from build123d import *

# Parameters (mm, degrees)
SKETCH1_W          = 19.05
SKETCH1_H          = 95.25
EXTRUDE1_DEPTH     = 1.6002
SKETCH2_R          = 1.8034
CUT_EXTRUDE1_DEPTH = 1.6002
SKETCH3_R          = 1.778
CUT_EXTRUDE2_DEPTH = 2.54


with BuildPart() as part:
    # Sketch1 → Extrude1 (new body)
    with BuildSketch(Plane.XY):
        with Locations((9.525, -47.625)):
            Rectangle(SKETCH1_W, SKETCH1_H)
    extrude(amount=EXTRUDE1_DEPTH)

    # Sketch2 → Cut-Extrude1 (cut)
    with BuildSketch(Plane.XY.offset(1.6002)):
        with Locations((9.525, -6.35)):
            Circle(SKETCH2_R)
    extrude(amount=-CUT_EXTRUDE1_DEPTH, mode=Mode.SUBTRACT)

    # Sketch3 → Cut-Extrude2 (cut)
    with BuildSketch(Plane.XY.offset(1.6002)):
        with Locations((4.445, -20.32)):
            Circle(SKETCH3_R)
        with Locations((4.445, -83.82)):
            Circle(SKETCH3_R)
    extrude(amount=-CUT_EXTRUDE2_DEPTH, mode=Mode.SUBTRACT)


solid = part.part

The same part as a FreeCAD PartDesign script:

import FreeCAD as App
import Part
import Sketcher
Q = App.Units.Quantity

doc = App.newDocument("Part")
params = doc.addObject("Spreadsheet::Sheet", "Params")
for row, (alias, value) in enumerate([
    ("sketch1_width", "0.75 in"),
    ("sketch1_height", "3.75 in"),
    ("pad1_length", "0.063 in"),
    ("sketch2_diameter", "0.142 in"),
    ("pocket1_length", "0.063 in"),
    ("sketch3_diameter", "0.14 in"),
    ("pocket2_length", "0.1 in"),
], start=1):
    params.set(f"A{row}", alias)
    params.set(f"B{row}", "=" + value)
    params.setAlias(f"B{row}", alias)

body = doc.addObject("PartDesign::Body", "Body")

sketch1 = body.newObject("Sketcher::SketchObject", "Sketch")
sketch1.AttachmentSupport = (doc.getObject("XY_Plane"), [""])
sketch1.MapMode = "FlatFace"
sketch1.addGeometry(Part.LineSegment(App.Vector(0, 0, 0), App.Vector(0, -95, 0)), False)
sketch1.addGeometry(Part.LineSegment(App.Vector(0, -95, 0), App.Vector(19, -95, 0)), False)
sketch1.addGeometry(Part.LineSegment(App.Vector(19, -95, 0), App.Vector(19, 0, 0)), False)
sketch1.addGeometry(Part.LineSegment(App.Vector(19, 0, 0), App.Vector(0, 0, 0)), False)
sketch1.addConstraint(Sketcher.Constraint("Coincident", 0, 2, 1, 1))
sketch1.addConstraint(Sketcher.Constraint("Coincident", 1, 2, 2, 1))
sketch1.addConstraint(Sketcher.Constraint("Coincident", 2, 2, 3, 1))
sketch1.addConstraint(Sketcher.Constraint("Coincident", 3, 2, 0, 1))
sketch1.addConstraint(Sketcher.Constraint("Vertical", 0))
sketch1.addConstraint(Sketcher.Constraint("Horizontal", 1))
sketch1.addConstraint(Sketcher.Constraint("Vertical", 2))
sketch1.addConstraint(Sketcher.Constraint("Horizontal", 3))
sketch1.addConstraint(Sketcher.Constraint("Coincident", 3, 2, -1, 1))
sketch1.addConstraint(Sketcher.Constraint("DistanceX", 1, 1, 1, 2, Q("0.75 in")))
sketch1.addConstraint(Sketcher.Constraint("DistanceY", 0, 2, 0, 1, Q("3.75 in")))
sketch1.setExpression("Constraints[9]", "Params.sketch1_width")
sketch1.setExpression("Constraints[10]", "Params.sketch1_height")
pad1 = body.newObject("PartDesign::Pad", "Pad")
pad1.Profile = sketch1
pad1.setExpression("Length", "Params.pad1_length")

sketch2 = body.newObject("Sketcher::SketchObject", "Sketch001")
sketch2.AttachmentSupport = (doc.getObject("XY_Plane"), [""])
sketch2.MapMode = "FlatFace"
sketch2.AttachmentOffset = App.Placement(App.Vector(0, 0, 0.063 * 25.4), App.Rotation())
sketch2.addGeometry(Part.Circle(App.Vector(9.5, -6.3, 0), App.Vector(0, 0, 1), 1.8), False)
sketch2.addConstraint(Sketcher.Constraint("Diameter", 0, Q("0.142 in")))
sketch2.addConstraint(Sketcher.Constraint("DistanceY", 0, 3, -1, 1, Q("0.25 in")))
sketch2.addConstraint(Sketcher.Constraint("DistanceX", -1, 1, 0, 3, Q("0.375 in")))
sketch2.setExpression("Constraints[0]", "Params.sketch2_diameter")
pocket1 = body.newObject("PartDesign::Pocket", "Pocket")
pocket1.Profile = sketch2
pocket1.setExpression("Length", "Params.pocket1_length")

sketch3 = body.newObject("Sketcher::SketchObject", "Sketch002")
sketch3.AttachmentSupport = (doc.getObject("XY_Plane"), [""])
sketch3.MapMode = "FlatFace"
sketch3.AttachmentOffset = App.Placement(App.Vector(0, 0, 0.063 * 25.4), App.Rotation())
sketch3.addGeometry(Part.Circle(App.Vector(4.4, -20.3, 0), App.Vector(0, 0, 1), 1.8), False)
sketch3.addGeometry(Part.Circle(App.Vector(4.4, -83.8, 0), App.Vector(0, 0, 1), 1.8), False)
sketch3.addConstraint(Sketcher.Constraint("Equal", 0, 1))
sketch3.addConstraint(Sketcher.Constraint("Vertical", 0, 3, 1, 3))
sketch3.addConstraint(Sketcher.Constraint("Diameter", 0, Q("0.14 in")))
sketch3.addConstraint(Sketcher.Constraint("DistanceY", 0, 3, -1, 1, Q("0.8 in")))
sketch3.addConstraint(Sketcher.Constraint("DistanceY", 1, 3, -1, 1, Q("3.3 in")))
sketch3.addConstraint(Sketcher.Constraint("DistanceX", -1, 1, 0, 3, Q("0.175 in")))
sketch3.setExpression("Constraints[2]", "Params.sketch3_diameter")
pocket2 = body.newObject("PartDesign::Pocket", "Pocket001")
pocket2.Profile = sketch3
pocket2.setExpression("Length", "Params.pocket2_length")

doc.recompute()
